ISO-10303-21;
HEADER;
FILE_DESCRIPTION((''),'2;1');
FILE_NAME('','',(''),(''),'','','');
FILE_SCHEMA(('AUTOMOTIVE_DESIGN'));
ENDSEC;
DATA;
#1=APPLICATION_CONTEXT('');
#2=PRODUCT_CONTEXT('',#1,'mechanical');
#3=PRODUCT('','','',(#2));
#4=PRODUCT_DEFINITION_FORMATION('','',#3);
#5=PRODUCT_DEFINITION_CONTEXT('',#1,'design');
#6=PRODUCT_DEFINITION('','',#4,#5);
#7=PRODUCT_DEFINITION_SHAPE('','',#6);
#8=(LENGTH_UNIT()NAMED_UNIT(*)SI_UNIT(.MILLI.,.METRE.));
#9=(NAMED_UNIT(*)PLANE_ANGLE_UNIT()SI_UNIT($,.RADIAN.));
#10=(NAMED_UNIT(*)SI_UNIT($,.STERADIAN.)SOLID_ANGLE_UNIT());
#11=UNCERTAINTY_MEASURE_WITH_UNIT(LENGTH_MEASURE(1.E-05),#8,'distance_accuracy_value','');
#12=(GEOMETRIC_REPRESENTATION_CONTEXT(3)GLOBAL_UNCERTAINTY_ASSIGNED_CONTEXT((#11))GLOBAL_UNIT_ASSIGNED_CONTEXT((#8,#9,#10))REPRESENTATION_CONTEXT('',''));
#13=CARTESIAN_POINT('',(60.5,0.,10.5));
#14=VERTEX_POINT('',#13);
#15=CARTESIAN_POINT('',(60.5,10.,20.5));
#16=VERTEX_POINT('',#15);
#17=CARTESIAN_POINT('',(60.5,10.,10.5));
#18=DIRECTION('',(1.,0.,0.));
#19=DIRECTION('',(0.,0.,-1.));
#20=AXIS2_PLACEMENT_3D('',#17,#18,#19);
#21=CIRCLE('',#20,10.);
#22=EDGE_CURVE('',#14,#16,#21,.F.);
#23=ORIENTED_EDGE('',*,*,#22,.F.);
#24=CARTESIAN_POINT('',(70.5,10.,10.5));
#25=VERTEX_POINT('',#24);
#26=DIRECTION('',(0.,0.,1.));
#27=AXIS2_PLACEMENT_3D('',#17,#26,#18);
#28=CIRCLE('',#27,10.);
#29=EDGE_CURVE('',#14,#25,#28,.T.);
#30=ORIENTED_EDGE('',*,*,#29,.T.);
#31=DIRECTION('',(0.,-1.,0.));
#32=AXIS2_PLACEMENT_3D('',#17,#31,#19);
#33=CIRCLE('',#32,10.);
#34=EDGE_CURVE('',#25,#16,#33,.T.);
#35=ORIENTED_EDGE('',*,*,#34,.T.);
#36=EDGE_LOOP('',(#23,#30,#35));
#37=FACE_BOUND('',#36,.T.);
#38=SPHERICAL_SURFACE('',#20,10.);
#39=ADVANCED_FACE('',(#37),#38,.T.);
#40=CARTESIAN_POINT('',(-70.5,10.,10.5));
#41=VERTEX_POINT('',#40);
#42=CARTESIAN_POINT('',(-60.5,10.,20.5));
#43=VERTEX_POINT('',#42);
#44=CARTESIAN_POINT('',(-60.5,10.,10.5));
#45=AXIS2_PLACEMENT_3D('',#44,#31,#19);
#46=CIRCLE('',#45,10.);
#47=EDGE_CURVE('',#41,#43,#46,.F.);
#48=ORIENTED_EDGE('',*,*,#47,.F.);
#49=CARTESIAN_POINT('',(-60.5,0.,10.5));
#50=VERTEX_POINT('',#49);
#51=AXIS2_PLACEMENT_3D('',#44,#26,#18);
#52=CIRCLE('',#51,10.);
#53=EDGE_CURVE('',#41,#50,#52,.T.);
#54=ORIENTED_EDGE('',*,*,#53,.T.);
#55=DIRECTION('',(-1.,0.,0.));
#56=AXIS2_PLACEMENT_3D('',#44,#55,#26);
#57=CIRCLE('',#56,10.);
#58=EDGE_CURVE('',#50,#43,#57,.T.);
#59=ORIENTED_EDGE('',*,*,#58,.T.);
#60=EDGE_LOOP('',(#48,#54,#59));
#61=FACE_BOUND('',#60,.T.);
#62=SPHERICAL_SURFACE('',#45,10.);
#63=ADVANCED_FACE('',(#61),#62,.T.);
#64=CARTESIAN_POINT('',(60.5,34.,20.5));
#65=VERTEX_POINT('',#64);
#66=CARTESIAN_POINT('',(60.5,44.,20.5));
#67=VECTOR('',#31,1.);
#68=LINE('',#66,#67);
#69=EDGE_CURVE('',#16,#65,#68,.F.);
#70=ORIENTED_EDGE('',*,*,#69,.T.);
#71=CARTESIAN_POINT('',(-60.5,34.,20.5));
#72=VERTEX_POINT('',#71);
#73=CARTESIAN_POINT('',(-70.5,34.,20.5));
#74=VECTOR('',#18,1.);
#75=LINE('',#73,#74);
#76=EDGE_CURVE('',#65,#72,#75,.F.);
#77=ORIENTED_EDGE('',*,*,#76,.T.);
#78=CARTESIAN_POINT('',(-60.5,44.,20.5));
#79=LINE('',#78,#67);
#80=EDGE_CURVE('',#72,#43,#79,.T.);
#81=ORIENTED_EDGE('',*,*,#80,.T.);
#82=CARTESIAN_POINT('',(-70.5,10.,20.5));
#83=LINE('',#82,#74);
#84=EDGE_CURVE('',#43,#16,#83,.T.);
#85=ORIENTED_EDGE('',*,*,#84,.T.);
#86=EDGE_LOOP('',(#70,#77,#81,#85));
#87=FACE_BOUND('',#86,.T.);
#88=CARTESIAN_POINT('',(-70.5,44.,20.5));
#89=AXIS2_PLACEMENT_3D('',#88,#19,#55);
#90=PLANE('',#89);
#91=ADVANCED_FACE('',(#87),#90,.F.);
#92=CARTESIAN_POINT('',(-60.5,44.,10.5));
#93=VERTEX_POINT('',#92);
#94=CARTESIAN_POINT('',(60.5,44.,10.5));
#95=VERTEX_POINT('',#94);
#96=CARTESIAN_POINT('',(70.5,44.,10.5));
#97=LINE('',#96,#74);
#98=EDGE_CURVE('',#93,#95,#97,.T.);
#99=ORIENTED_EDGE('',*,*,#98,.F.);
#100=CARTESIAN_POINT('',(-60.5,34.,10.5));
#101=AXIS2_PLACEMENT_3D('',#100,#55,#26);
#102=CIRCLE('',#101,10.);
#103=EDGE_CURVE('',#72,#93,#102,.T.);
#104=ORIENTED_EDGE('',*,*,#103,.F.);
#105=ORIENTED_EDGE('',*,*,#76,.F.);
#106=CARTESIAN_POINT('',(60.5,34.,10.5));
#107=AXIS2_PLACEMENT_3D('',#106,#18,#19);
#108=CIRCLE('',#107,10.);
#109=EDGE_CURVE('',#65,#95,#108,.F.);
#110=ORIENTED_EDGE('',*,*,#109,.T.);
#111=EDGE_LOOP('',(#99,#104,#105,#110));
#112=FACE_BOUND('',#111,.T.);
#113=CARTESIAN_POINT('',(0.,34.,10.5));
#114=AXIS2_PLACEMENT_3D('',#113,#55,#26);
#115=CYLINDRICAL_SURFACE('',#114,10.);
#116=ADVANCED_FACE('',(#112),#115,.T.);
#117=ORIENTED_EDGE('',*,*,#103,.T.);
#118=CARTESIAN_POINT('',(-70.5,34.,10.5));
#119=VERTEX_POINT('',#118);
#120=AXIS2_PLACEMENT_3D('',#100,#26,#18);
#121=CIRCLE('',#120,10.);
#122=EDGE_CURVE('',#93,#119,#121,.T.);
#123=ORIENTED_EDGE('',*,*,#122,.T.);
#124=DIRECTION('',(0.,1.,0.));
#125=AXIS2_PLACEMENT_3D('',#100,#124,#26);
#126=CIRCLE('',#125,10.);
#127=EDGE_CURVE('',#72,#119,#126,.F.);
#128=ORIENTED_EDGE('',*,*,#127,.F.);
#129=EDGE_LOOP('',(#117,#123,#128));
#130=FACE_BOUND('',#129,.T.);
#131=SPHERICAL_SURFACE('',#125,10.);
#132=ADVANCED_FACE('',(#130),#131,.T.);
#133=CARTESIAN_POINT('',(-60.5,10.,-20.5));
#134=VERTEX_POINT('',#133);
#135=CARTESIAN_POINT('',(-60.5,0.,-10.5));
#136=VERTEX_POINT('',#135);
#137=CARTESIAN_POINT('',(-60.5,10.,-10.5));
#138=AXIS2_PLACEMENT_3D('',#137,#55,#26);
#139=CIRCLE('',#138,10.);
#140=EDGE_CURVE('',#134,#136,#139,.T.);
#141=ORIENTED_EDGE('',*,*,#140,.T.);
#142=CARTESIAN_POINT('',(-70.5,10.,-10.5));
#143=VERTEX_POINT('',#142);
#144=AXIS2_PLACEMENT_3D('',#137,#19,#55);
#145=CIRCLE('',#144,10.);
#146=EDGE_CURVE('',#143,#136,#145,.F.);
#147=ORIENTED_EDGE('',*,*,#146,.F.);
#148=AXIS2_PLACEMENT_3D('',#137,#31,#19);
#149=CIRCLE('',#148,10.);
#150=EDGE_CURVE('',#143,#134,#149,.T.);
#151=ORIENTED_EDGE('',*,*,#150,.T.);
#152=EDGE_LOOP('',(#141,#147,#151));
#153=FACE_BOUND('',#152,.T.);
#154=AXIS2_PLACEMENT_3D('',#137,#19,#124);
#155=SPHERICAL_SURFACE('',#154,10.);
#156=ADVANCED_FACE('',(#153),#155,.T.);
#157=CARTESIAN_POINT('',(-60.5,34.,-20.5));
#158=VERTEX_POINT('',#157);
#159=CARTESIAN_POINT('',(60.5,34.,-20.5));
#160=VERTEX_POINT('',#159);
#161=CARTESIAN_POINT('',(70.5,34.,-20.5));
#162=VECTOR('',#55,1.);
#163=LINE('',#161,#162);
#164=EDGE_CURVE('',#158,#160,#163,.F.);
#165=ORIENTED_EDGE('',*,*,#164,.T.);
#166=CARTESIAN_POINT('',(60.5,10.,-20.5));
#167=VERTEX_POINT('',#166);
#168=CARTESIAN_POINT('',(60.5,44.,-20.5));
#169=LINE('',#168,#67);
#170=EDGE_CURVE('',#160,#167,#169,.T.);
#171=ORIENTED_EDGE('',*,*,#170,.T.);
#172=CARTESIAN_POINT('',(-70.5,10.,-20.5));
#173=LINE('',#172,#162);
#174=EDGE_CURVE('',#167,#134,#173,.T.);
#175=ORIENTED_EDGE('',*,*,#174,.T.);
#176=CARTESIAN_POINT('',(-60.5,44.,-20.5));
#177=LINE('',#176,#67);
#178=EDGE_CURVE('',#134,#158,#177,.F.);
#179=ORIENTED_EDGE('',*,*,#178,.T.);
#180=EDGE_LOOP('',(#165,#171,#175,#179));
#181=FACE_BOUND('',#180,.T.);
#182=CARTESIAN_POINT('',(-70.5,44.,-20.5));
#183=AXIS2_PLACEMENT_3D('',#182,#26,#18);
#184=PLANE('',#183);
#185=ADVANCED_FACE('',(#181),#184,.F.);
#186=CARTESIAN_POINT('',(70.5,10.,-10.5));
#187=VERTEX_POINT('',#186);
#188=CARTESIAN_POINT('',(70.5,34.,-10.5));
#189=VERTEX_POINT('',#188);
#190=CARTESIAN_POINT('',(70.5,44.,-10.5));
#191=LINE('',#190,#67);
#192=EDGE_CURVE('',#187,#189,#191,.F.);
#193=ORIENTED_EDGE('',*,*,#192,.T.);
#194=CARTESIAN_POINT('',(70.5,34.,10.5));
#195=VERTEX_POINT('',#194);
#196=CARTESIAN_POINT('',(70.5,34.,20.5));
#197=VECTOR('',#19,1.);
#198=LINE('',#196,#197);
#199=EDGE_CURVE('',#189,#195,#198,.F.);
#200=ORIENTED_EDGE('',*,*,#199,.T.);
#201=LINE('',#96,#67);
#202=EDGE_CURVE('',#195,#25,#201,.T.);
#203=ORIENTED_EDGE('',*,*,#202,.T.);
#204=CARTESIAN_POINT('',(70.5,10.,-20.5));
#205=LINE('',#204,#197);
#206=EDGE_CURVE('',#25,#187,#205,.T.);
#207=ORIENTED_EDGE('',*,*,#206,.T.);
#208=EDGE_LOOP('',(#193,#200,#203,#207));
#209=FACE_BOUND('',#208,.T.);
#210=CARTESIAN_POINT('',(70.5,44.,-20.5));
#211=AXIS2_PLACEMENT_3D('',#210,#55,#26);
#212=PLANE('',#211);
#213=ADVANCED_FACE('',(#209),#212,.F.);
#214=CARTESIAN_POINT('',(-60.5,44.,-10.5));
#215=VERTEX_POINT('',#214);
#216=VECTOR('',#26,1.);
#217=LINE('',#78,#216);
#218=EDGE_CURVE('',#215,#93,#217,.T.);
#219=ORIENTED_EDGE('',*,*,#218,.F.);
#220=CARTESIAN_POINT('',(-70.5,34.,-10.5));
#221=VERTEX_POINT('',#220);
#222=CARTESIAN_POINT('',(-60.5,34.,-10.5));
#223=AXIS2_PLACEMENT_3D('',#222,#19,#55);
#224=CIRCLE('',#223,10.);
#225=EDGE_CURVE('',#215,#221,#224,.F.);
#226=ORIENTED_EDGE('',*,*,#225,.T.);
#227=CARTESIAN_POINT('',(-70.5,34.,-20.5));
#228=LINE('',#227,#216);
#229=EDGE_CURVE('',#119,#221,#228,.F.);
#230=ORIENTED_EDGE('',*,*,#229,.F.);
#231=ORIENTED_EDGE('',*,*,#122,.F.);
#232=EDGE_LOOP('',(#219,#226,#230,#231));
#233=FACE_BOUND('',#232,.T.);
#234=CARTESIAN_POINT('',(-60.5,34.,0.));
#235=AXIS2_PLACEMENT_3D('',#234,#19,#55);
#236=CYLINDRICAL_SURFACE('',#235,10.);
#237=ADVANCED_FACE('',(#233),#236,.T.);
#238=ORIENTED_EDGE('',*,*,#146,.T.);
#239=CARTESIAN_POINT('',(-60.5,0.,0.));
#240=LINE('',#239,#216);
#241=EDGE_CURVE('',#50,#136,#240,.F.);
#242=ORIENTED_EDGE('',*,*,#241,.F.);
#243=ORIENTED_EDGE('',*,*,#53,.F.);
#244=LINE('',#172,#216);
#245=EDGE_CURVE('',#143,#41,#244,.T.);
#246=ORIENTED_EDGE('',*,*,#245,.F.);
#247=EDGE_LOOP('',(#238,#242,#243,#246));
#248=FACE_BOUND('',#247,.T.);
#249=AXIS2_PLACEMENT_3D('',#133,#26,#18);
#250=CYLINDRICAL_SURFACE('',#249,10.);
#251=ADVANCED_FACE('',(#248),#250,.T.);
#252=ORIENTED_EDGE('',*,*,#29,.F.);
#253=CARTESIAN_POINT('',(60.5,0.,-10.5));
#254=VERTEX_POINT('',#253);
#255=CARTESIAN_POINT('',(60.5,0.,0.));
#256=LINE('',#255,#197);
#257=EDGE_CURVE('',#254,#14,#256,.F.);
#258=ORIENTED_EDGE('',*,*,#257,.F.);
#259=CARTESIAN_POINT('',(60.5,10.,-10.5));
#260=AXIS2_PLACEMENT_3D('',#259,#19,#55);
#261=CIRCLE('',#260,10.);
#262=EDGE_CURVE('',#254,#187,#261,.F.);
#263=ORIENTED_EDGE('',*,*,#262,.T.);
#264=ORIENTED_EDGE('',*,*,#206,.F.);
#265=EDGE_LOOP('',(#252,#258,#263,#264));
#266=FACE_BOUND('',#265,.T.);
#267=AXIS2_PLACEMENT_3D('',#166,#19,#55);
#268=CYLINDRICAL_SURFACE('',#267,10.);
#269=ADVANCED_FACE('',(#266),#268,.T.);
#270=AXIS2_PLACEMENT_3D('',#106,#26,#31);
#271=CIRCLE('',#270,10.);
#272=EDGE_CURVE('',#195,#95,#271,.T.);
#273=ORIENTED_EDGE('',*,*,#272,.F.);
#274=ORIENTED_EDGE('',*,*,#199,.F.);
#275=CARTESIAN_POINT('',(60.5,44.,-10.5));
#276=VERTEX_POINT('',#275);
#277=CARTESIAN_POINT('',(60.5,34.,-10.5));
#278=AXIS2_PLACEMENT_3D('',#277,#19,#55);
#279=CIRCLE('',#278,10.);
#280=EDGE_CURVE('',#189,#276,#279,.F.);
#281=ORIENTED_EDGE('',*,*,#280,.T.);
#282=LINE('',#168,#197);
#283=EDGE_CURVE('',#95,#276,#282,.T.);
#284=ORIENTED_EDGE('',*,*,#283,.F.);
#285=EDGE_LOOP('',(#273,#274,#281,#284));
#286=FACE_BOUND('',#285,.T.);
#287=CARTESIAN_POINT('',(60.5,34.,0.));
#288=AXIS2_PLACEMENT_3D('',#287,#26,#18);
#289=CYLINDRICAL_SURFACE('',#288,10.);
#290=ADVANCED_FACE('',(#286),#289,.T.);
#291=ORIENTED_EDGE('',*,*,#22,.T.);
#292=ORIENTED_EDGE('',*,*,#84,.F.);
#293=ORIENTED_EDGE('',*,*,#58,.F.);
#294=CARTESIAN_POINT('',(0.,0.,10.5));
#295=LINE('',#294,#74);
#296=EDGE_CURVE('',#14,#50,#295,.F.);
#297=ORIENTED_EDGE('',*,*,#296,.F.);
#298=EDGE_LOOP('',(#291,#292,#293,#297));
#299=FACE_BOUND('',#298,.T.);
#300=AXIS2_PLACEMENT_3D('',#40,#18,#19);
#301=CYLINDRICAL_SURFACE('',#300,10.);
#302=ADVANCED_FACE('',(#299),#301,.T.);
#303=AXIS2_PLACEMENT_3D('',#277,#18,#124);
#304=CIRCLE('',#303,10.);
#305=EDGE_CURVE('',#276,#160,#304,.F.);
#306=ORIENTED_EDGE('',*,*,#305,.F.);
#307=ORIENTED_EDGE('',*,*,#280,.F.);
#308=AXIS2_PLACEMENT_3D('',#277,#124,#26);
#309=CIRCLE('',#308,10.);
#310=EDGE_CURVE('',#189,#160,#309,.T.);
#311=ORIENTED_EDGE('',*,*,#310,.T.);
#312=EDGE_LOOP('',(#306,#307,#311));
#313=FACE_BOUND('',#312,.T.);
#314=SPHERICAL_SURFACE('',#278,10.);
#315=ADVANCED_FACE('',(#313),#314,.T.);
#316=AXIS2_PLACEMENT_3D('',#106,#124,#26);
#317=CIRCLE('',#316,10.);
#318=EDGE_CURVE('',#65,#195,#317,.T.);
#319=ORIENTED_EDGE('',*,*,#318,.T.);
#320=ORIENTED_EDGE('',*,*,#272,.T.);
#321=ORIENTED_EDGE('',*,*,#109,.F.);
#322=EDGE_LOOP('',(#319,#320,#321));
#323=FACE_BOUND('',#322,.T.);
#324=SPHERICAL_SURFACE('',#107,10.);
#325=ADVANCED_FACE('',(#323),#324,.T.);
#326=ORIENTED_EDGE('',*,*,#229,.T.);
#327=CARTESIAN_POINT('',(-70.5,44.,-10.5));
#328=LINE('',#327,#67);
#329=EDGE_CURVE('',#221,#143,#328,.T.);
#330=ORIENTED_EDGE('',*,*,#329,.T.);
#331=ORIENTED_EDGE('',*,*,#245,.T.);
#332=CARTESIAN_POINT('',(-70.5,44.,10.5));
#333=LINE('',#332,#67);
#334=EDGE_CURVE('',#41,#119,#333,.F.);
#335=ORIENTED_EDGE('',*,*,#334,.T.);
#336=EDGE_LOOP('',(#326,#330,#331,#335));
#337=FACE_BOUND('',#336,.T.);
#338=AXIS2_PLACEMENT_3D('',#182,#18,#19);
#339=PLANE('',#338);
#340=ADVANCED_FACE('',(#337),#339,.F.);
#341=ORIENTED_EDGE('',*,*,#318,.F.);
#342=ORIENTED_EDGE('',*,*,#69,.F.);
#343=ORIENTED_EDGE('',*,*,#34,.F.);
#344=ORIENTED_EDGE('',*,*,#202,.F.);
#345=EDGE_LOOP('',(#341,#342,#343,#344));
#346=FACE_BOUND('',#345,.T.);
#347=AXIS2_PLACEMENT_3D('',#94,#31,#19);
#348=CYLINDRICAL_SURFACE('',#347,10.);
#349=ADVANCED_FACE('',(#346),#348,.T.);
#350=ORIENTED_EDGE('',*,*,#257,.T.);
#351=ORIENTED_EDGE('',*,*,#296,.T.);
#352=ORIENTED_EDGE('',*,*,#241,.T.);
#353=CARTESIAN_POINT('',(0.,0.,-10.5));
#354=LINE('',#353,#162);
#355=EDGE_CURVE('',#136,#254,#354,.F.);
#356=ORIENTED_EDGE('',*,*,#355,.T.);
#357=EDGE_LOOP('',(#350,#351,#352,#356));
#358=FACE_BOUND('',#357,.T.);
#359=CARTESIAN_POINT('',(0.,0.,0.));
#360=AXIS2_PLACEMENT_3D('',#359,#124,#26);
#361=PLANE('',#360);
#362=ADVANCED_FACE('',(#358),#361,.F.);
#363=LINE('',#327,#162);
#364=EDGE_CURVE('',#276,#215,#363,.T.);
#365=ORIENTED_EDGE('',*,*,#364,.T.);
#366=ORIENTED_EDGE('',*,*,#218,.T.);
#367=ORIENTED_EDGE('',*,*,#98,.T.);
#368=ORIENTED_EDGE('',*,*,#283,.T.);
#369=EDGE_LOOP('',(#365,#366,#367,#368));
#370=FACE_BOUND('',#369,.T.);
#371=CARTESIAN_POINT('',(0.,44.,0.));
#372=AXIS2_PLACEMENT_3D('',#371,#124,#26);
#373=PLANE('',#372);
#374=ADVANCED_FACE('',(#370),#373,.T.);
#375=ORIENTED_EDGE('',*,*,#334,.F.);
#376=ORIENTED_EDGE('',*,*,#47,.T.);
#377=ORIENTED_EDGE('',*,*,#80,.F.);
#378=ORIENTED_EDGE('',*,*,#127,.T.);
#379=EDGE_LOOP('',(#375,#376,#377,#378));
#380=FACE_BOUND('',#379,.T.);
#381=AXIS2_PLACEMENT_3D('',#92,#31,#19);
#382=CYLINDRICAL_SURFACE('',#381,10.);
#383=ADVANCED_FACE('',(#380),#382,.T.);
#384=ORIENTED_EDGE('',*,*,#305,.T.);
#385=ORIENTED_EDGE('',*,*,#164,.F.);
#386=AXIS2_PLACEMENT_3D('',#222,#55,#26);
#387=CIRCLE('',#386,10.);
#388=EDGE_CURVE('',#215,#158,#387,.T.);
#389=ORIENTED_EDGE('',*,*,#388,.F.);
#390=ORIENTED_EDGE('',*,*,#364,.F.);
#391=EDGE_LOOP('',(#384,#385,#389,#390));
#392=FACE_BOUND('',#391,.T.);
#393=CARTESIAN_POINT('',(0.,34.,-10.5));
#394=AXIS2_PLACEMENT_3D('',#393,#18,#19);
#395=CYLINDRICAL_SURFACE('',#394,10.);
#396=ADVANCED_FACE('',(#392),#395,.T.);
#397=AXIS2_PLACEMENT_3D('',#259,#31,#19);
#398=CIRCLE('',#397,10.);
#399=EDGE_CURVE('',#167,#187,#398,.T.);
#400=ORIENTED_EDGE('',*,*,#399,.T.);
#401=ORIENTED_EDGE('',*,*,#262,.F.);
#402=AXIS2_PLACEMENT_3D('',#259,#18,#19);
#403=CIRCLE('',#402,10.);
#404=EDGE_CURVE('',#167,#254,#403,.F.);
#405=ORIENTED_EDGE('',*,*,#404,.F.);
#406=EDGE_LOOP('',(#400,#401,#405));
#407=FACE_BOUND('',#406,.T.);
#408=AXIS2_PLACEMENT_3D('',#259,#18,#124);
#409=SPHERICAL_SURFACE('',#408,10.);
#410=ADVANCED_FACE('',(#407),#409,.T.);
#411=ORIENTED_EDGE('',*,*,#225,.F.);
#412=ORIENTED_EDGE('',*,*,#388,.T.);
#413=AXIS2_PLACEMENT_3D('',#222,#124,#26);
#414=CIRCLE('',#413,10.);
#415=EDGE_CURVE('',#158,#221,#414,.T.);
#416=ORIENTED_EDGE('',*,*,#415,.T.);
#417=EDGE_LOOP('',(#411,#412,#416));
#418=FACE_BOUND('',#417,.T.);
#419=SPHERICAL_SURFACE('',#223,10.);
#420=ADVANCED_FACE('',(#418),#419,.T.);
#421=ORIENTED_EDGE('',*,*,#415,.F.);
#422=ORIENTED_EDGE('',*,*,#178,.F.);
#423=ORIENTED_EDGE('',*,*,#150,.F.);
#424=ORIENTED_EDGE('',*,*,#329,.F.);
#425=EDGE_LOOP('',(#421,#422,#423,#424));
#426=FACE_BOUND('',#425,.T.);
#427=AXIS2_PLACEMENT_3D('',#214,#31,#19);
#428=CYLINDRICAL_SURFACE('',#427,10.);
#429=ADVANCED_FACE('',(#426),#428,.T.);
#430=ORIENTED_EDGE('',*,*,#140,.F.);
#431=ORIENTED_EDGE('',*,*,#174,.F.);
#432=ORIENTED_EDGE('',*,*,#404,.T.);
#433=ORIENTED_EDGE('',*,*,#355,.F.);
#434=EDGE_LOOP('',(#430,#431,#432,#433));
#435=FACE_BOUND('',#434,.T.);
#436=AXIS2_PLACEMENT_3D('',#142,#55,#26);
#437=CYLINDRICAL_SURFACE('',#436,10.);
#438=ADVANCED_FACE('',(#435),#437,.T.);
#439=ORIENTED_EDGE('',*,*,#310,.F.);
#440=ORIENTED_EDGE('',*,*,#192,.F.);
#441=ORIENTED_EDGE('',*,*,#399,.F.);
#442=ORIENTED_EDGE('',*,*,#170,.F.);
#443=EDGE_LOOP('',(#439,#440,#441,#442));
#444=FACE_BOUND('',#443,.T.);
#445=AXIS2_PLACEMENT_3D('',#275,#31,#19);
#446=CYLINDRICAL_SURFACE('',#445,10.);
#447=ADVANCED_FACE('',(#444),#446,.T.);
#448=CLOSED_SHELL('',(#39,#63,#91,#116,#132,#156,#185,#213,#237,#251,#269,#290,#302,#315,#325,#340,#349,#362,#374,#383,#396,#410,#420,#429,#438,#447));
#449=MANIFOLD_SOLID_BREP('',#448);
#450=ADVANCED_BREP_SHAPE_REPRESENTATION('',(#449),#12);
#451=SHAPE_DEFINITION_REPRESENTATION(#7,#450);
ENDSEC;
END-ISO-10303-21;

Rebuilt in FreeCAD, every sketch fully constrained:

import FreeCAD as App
import Part
import Sketcher

V = App.Vector


def add_polygon(sketch, points):
    """Adds a closed chain of lines whose ends are joined by coincident constraints."""
    first, n = sketch.GeometryCount, len(points)
    for a, b in zip(points, points[1:] + points[:1]):
        sketch.addGeometry(Part.LineSegment(App.Vector(*a, 0), App.Vector(*b, 0)), False)
    for i in range(n):
        sketch.addConstraint(Sketcher.Constraint("Coincident", first + i, 2, first + (i + 1) % n, 1))

doc = App.newDocument("Part")
params = doc.addObject("Spreadsheet::Sheet", "Params")
for row, (alias, value) in enumerate([
    ("sketch1_width", "141 mm"),
    ("sketch1_height", "41 mm"),
    ("pad1_length", "44 mm"),
    ("fillet_radius", "10 mm"),
], start=1):
    params.set(f"A{row}", alias)
    params.set(f"B{row}", "=" + value)
    params.setAlias(f"B{row}", alias)

body = doc.addObject("PartDesign::Body", "Body")

# Sketch on XZ plane
sketch1 = body.newObject("Sketcher::SketchObject", "Sketch")
sketch1.AttachmentSupport = (doc.getObject("XZ_Plane"), [""])
sketch1.MapMode = "FlatFace"
add_polygon(sketch1, [(-70.5, -20.5), (-70.5, 20.5), (70.5, 20.5), (70.5, -20.5)])  # lines 0-3
sketch1.addConstraint([
    Sketcher.Constraint("Vertical", 0),
    Sketcher.Constraint("Horizontal", 1),
    Sketcher.Constraint("Vertical", 2),
    Sketcher.Constraint("Horizontal", 3),
    Sketcher.Constraint("Symmetric", 0, 2, 2, 2, -1, 1),
    Sketcher.Constraint("DistanceX", 1, 1, 1, 2, 141.0),
    Sketcher.Constraint("DistanceY", 0, 1, 0, 2, 41.0),
])
sketch1.setExpression("Constraints[9]", "Params.sketch1_width")
sketch1.setExpression("Constraints[10]", "Params.sketch1_height")
pad1 = body.newObject("PartDesign::Pad", "Pad")
pad1.Profile = sketch1
pad1.setExpression("Length", "Params.pad1_length")
pad1.Reversed = True
doc.recompute()

fillet = body.newObject("PartDesign::Fillet", "Fillet")
fillet.Base = (pad1, ["Edge1"])
fillet.UseAllEdges = True
fillet.setExpression("Radius", "Params.fillet_radius")

doc.recompute()
